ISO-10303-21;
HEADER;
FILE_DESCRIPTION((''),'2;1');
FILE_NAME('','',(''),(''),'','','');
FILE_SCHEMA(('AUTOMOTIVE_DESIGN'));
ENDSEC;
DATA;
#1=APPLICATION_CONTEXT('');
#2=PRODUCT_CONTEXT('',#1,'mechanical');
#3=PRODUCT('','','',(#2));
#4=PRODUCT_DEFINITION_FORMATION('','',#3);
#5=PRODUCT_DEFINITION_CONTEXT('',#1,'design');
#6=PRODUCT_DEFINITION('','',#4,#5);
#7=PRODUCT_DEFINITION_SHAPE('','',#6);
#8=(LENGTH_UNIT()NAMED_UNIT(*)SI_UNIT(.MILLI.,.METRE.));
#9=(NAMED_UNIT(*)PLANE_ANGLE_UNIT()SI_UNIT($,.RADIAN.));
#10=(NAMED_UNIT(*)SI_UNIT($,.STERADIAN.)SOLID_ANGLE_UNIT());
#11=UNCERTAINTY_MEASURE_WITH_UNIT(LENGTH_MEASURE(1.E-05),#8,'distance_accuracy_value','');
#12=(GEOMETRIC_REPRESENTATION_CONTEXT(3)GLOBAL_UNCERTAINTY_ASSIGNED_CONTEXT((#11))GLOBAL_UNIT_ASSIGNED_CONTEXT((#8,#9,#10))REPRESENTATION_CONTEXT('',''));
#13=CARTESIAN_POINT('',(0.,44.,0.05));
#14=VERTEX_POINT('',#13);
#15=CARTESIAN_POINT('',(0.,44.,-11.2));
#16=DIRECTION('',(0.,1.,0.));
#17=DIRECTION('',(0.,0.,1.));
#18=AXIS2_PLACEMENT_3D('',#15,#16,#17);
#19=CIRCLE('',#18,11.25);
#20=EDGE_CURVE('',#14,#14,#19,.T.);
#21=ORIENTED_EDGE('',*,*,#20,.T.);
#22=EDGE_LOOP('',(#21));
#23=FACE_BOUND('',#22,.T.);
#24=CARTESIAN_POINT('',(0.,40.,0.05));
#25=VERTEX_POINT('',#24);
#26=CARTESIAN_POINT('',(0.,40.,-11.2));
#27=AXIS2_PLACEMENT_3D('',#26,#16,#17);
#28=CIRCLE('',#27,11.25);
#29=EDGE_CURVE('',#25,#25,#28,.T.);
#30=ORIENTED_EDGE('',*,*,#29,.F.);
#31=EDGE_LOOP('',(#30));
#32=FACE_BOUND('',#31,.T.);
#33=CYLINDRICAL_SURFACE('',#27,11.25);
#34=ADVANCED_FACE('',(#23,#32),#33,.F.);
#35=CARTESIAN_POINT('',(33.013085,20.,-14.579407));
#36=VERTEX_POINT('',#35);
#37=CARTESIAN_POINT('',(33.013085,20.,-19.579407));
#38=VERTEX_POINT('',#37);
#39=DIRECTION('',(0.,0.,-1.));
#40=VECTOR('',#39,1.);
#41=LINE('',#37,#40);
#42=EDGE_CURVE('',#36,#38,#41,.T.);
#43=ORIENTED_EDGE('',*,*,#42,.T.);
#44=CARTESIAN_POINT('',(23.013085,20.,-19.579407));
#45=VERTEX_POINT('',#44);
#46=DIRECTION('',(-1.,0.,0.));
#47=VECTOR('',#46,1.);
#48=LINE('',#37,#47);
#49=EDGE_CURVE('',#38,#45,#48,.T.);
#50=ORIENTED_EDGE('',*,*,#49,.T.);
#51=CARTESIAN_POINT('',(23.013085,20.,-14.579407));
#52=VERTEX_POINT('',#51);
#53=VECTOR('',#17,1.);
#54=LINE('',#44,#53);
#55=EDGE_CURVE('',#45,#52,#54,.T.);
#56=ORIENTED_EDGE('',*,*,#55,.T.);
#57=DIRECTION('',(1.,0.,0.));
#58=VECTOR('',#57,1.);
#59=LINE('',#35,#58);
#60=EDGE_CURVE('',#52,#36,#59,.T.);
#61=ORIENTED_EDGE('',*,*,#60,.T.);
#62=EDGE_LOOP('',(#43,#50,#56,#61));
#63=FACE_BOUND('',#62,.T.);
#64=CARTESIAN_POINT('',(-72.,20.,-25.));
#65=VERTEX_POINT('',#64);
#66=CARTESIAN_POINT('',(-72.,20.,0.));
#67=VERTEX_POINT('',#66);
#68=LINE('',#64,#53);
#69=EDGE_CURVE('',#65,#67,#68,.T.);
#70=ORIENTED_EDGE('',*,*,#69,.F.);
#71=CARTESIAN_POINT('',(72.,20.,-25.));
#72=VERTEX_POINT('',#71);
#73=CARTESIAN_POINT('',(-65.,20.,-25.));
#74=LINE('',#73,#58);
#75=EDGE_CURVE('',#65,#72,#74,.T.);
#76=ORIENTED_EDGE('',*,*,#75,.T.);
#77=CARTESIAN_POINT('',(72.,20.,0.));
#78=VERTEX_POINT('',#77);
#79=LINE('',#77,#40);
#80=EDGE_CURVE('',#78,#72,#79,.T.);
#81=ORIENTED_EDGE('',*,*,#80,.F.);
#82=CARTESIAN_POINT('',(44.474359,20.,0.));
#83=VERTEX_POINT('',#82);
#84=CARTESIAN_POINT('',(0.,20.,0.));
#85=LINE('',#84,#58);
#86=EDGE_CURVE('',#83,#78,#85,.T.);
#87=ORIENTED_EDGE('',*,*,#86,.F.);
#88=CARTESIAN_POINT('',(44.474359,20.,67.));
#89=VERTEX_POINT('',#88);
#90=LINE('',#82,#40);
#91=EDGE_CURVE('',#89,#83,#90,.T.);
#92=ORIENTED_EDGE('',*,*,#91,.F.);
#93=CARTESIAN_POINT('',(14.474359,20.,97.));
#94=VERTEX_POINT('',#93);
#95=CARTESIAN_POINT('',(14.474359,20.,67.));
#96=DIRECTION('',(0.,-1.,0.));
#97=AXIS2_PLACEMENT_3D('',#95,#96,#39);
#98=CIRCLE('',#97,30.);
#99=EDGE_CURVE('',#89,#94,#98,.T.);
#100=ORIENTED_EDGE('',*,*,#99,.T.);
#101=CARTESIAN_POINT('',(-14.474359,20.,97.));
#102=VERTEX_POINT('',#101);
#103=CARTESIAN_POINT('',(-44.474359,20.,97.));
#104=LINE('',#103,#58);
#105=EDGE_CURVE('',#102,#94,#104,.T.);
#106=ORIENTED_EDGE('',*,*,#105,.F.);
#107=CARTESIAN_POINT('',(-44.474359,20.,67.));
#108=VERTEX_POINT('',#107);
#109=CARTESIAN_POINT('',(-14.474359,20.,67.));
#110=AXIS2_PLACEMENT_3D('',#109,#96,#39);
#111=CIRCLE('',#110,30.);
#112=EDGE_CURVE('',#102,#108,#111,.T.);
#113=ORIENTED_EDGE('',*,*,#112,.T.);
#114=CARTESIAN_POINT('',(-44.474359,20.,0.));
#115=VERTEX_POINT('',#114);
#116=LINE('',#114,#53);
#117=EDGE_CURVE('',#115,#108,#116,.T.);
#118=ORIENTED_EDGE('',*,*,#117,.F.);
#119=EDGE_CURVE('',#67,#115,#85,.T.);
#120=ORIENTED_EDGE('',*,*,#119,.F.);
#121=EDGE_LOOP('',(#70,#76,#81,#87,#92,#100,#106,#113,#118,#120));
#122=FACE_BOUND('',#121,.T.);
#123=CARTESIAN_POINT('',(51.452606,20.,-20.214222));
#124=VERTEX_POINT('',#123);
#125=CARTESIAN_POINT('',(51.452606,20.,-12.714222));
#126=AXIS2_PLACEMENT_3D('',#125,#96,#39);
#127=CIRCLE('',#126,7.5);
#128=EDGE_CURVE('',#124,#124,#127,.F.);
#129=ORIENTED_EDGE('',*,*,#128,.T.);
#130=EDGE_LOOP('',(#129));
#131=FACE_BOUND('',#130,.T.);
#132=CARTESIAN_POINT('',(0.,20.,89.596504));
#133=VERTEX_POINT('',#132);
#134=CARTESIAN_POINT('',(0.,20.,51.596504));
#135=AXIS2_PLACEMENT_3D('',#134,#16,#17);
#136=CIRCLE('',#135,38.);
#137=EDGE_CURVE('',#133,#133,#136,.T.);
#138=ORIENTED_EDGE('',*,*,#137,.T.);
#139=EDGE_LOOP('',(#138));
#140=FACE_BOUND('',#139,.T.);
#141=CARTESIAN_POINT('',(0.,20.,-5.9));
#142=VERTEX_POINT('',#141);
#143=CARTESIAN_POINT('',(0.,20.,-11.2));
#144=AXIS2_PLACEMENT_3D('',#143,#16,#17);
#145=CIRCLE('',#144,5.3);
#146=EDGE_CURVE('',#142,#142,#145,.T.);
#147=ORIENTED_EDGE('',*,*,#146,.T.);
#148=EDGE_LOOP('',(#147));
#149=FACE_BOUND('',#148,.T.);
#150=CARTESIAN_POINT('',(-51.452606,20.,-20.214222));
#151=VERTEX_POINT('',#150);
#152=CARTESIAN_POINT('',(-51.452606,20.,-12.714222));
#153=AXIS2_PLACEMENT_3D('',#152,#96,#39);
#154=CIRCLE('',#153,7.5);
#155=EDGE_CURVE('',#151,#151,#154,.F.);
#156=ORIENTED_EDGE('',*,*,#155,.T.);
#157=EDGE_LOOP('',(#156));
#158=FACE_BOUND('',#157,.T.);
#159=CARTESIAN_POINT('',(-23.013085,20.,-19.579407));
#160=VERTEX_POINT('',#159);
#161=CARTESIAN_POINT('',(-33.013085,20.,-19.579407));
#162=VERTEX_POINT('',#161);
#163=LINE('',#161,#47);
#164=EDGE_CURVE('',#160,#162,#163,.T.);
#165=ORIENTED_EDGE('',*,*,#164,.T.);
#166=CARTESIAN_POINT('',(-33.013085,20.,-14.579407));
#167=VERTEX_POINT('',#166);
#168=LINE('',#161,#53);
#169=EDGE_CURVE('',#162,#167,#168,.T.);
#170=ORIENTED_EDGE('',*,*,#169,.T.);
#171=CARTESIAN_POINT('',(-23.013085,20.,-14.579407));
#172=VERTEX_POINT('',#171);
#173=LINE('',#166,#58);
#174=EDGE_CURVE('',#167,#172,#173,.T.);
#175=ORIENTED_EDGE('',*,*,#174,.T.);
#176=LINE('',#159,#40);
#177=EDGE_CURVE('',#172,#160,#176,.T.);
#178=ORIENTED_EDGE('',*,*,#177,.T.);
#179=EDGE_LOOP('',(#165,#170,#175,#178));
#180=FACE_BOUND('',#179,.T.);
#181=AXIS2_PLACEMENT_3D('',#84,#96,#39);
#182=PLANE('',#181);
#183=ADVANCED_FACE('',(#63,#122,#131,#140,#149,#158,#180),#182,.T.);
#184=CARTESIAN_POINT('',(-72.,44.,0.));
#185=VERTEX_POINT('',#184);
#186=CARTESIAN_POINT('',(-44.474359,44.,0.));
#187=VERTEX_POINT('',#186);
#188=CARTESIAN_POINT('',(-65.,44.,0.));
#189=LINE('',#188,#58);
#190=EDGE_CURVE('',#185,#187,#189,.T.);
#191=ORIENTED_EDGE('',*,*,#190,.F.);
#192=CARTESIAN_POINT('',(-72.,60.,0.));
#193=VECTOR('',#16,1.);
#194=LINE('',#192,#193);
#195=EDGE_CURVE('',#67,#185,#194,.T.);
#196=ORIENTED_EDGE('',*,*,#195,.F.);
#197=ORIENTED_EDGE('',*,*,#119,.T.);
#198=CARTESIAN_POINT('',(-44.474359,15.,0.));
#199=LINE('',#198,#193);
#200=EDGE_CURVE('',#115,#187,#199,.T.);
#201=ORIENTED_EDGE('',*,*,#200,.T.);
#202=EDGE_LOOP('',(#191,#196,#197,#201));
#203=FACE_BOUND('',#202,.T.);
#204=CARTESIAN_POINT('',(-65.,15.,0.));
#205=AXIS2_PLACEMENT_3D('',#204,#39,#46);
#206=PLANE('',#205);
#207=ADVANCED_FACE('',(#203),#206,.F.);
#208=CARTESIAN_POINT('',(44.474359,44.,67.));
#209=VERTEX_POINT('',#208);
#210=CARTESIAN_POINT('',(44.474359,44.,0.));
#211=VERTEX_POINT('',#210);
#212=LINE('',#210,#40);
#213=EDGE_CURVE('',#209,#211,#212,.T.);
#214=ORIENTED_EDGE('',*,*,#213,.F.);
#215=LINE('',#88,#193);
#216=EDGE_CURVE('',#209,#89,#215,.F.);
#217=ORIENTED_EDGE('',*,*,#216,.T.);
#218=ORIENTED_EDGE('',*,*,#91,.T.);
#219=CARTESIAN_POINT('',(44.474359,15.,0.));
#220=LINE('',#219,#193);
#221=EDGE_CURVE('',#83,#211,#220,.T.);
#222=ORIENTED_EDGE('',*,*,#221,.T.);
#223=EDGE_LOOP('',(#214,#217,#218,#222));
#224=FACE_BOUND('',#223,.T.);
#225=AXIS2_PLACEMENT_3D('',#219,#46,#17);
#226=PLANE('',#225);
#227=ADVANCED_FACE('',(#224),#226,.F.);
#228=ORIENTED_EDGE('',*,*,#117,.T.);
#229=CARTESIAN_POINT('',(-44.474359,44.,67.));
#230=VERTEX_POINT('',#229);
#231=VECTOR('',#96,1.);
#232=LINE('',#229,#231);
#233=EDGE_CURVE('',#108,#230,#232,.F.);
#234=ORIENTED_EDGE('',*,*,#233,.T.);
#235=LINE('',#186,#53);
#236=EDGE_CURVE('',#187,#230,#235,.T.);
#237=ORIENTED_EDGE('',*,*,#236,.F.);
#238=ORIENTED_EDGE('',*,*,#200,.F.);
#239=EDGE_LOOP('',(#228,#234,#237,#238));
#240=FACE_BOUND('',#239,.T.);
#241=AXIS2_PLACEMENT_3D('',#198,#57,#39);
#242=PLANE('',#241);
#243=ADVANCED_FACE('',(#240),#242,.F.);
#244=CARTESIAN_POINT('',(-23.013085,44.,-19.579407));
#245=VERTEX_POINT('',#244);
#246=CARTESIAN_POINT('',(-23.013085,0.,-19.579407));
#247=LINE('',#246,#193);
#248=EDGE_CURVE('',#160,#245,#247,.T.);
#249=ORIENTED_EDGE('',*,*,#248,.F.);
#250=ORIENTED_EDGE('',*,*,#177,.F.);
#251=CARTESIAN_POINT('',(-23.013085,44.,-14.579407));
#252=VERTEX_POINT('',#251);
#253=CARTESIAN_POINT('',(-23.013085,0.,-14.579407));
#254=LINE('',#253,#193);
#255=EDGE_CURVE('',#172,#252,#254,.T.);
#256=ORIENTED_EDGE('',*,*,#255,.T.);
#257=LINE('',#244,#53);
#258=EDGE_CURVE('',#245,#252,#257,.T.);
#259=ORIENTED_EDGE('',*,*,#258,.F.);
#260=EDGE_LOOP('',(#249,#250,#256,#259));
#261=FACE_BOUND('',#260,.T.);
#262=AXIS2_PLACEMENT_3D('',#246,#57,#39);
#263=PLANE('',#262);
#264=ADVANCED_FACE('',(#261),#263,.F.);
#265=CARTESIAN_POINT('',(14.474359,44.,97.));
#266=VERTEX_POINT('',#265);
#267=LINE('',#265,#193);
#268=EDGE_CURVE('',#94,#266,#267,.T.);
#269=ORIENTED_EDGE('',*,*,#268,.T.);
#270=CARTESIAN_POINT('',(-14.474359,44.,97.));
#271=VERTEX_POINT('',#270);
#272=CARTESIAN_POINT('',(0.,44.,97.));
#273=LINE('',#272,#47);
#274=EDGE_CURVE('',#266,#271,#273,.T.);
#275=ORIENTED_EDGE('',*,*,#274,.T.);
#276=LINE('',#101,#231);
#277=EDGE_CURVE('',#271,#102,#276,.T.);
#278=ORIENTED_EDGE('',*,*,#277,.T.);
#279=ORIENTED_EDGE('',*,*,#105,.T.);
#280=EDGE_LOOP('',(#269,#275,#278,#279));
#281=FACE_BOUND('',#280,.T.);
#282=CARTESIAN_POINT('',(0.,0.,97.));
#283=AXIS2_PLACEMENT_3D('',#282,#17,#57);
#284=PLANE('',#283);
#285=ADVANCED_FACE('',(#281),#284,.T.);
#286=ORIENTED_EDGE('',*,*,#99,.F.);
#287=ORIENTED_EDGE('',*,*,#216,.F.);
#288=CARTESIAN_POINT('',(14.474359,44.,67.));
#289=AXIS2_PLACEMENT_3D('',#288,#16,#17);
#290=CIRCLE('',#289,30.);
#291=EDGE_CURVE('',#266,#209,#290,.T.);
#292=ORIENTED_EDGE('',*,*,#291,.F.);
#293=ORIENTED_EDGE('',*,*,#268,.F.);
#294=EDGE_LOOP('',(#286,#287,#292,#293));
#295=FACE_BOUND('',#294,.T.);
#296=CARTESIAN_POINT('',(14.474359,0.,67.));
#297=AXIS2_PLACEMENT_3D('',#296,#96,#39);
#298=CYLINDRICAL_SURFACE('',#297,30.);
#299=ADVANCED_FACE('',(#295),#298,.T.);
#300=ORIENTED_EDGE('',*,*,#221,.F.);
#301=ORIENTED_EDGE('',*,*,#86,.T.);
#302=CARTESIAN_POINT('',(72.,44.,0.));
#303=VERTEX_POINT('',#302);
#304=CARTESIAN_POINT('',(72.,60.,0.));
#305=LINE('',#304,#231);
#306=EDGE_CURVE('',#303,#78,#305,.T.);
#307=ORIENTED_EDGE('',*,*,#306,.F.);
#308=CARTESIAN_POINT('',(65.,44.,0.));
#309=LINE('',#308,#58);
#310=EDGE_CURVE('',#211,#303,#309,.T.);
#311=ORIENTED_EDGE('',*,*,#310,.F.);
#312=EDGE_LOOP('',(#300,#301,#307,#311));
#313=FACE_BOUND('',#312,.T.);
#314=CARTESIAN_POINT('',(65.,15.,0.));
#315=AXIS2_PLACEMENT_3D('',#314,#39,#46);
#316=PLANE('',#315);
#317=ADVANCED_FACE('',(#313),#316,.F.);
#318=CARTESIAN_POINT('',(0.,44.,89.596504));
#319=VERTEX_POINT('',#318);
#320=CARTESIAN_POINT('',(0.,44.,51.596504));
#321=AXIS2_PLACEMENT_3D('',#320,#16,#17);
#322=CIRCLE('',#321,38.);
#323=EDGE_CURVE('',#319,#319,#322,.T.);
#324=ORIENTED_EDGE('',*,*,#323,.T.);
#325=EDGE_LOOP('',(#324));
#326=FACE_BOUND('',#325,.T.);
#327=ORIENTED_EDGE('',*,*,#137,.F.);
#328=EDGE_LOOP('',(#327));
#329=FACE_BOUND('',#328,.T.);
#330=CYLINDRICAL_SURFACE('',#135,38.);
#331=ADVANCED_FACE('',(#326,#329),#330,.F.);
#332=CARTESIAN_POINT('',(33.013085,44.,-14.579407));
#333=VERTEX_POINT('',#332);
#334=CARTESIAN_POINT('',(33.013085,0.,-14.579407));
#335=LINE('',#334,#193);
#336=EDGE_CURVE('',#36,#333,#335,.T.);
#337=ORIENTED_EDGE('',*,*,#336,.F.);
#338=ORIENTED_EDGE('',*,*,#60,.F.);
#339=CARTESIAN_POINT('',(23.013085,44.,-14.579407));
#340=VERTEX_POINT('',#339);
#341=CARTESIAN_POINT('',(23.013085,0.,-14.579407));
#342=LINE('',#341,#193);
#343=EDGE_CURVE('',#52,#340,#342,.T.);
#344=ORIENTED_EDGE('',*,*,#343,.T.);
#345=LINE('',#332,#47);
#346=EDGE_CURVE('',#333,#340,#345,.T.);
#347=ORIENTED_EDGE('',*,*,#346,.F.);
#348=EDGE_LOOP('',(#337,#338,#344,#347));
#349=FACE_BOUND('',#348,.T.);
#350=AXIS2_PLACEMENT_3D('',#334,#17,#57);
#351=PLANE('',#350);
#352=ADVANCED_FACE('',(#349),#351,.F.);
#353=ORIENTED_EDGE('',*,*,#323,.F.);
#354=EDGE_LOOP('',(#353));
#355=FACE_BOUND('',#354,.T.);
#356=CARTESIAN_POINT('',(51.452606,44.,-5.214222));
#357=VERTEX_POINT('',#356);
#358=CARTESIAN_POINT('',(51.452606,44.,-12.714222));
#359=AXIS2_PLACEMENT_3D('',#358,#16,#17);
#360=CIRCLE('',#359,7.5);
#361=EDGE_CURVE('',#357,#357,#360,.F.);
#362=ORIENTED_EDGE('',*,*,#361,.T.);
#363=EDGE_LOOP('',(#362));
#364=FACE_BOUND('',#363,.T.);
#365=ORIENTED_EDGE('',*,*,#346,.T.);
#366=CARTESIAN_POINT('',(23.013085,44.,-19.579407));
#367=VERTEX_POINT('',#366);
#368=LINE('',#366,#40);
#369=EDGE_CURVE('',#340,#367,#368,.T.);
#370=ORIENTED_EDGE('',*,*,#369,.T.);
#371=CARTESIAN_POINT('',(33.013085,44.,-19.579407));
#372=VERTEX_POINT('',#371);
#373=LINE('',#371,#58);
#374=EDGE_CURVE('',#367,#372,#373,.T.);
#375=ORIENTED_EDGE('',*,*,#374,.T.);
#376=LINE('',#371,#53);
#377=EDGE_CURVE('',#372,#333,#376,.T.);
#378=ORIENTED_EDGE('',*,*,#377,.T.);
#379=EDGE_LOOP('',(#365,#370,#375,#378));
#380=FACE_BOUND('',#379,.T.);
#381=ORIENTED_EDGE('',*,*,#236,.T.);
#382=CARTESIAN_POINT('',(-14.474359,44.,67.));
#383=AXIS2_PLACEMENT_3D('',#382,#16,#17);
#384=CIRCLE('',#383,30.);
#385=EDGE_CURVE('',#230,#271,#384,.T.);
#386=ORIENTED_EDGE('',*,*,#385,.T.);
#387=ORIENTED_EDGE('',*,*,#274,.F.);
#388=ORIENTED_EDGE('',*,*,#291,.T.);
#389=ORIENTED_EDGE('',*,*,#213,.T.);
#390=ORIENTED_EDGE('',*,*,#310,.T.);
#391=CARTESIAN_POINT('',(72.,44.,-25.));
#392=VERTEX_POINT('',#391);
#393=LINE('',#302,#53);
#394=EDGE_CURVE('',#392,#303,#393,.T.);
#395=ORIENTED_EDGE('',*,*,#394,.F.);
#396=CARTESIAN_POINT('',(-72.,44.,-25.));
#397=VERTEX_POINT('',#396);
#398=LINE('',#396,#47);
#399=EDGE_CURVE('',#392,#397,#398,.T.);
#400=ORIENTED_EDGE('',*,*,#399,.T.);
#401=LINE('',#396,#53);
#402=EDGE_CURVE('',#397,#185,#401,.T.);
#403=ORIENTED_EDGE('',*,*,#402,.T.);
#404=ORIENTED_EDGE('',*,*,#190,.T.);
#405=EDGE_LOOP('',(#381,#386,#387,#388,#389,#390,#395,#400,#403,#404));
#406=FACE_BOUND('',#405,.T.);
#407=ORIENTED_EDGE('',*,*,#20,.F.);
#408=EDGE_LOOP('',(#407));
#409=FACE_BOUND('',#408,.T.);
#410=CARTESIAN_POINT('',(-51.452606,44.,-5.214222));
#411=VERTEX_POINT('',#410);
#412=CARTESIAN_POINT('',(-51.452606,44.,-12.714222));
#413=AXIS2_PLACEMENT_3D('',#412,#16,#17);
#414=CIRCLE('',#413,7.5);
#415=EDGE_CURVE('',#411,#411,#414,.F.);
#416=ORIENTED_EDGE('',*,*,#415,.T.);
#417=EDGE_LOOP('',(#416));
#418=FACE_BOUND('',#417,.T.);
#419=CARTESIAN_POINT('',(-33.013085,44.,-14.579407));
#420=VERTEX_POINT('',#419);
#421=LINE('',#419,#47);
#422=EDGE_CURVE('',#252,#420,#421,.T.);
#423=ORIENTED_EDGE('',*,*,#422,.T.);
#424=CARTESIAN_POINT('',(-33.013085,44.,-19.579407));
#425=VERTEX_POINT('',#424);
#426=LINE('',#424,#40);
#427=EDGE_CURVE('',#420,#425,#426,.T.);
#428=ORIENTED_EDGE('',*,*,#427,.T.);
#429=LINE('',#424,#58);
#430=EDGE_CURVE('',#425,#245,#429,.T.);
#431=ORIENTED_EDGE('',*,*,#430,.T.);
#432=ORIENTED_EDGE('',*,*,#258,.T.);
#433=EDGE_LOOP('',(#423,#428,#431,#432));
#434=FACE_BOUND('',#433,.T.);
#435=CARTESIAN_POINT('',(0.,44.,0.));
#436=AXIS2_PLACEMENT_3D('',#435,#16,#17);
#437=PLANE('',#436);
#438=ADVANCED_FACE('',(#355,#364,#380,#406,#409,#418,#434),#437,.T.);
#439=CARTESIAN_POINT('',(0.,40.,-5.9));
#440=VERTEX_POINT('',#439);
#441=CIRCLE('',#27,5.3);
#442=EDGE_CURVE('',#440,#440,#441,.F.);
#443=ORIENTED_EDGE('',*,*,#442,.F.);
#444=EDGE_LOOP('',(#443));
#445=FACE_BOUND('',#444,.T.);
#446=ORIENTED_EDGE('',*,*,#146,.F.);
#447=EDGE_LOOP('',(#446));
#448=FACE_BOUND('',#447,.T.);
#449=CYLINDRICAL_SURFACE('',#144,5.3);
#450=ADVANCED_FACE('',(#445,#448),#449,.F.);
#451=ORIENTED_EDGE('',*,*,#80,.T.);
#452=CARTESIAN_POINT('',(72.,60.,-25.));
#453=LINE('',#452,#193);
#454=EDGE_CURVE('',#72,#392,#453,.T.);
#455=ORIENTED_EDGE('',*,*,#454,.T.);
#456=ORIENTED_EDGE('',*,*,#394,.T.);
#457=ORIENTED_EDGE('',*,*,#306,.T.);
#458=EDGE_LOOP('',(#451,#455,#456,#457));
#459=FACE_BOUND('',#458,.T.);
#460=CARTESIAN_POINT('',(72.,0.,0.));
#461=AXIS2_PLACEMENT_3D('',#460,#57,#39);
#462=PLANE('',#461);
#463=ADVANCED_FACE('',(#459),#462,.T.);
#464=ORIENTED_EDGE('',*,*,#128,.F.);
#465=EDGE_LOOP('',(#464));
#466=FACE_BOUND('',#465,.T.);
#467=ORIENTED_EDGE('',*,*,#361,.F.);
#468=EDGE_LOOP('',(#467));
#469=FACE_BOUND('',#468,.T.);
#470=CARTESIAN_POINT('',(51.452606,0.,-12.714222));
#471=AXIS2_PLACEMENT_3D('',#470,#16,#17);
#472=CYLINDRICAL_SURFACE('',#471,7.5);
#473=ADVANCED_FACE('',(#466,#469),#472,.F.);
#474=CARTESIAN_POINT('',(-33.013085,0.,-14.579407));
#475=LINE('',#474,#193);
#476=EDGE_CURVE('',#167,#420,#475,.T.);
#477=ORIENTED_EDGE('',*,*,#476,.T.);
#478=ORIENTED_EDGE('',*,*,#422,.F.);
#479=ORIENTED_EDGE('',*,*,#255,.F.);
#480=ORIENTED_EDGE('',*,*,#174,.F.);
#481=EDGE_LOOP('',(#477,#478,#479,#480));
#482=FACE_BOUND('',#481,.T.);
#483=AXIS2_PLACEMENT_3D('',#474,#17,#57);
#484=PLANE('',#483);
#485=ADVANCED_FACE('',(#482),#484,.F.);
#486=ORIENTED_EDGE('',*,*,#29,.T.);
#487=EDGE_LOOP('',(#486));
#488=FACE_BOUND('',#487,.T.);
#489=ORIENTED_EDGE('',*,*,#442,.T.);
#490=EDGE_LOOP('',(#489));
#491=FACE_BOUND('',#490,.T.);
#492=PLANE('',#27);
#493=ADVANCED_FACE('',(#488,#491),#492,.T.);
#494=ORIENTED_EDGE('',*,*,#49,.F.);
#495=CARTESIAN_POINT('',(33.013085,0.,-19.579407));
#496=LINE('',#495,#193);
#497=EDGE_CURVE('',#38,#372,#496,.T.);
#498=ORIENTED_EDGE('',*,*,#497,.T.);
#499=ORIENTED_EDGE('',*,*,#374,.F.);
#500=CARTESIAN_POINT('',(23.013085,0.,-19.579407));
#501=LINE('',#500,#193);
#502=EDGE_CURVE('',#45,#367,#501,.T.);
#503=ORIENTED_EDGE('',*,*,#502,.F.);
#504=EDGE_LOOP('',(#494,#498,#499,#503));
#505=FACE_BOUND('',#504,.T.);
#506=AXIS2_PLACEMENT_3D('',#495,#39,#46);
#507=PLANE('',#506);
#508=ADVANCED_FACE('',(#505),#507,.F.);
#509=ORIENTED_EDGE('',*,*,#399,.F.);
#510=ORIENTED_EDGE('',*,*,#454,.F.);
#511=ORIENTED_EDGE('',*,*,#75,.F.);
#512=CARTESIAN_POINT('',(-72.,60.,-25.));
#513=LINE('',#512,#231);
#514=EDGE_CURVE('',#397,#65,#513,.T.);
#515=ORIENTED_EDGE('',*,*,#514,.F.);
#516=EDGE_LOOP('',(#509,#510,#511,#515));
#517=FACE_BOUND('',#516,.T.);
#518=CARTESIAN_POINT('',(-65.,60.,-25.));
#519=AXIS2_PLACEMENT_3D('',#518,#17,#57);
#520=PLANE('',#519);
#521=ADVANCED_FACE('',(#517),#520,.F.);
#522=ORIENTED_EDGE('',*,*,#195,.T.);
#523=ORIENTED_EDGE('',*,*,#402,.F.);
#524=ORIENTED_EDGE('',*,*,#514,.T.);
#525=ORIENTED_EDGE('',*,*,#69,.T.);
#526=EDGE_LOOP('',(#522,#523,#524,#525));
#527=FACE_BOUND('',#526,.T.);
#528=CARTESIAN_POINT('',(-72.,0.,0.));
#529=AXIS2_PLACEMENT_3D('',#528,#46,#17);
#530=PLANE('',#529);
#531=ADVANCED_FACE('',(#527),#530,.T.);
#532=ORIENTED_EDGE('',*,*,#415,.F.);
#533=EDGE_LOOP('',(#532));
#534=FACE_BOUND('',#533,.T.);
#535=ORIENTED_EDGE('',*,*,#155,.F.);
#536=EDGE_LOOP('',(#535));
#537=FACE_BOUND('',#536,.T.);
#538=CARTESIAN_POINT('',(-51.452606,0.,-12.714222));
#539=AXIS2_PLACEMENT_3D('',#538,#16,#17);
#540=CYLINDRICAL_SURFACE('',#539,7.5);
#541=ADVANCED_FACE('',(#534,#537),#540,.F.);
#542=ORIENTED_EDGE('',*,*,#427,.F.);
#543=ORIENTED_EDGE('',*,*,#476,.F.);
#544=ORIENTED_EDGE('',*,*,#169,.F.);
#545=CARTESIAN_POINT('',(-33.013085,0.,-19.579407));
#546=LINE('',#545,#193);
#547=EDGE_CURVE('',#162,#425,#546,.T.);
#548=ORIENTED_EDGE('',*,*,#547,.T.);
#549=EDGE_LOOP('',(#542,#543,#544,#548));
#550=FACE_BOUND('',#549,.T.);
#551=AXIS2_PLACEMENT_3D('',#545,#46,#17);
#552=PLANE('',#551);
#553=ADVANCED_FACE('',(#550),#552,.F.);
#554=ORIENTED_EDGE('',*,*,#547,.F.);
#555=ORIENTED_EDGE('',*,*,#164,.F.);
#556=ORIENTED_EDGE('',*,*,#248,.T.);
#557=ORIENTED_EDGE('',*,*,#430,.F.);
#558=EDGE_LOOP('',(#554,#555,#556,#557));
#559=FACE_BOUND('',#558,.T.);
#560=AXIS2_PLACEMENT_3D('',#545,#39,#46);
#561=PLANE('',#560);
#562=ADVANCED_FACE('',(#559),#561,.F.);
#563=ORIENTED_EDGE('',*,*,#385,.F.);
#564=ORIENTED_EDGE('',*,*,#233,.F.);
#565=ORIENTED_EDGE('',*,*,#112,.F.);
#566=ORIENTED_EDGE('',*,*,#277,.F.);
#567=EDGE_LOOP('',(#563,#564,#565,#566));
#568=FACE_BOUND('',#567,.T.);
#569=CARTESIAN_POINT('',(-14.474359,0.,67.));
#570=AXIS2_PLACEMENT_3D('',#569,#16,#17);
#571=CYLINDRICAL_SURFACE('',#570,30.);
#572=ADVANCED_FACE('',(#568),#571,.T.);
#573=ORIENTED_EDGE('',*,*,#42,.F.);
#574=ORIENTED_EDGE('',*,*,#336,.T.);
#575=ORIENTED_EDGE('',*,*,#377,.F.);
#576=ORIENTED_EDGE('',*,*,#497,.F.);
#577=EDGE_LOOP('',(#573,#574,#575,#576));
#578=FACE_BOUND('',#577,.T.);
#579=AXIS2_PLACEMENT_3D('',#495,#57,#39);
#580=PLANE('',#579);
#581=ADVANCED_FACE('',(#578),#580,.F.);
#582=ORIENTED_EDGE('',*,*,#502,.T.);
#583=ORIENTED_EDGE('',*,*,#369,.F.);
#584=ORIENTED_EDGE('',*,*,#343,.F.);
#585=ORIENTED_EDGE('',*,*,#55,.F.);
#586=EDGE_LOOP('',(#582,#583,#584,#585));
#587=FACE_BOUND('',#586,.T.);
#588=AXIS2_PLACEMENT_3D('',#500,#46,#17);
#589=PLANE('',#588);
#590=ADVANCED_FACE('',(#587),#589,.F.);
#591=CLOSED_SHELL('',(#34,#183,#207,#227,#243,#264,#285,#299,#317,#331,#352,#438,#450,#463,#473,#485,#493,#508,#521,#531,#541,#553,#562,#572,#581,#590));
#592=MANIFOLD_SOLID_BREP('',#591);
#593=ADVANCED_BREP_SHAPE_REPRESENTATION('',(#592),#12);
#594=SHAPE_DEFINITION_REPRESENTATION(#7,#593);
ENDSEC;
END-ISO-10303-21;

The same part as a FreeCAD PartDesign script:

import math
import FreeCAD as App
import Part
import Sketcher
from FreeCAD import Vector
Q = App.Units.Quantity


def edges_at(feature, points):
    """Names of the edges that pass closest to the given points."""
    edges = feature.Shape.Edges
    near = lambda p: min(range(len(edges)), key=lambda i: edges[i].distToShape(Part.Vertex(*p))[0])
    return sorted({f"Edge{near(p) + 1}" for p in points})

doc = App.newDocument("Part")
body = doc.addObject("PartDesign::Body", "Body")

sketch1 = body.newObject("Sketcher::SketchObject", "Sketch")
sketch1.AttachmentSupport = (doc.getObject("XZ_Plane"), [""])
sketch1.MapMode = "FlatFace"
sketch1.addGeometry([
    Part.LineSegment(Vector(65, -25, 0), Vector(-65, -25, 0)),
    Part.LineSegment(Vector(-65, -25, 0), Vector(-65, 25, 0)),
    Part.LineSegment(Vector(-65, 25, 0), Vector(-33, 25, 0)),
    Part.ArcOfCircle(Part.Circle(Vector(0, 45, 0), Vector(0, 0, 1), 38), math.radians(-149), math.radians(-31)),
    Part.LineSegment(Vector(33, 25, 0), Vector(65, 25, 0)),
    Part.LineSegment(Vector(65, 25, 0), Vector(65, -25, 0)),
], False)
sketch1.addConstraint([
    Sketcher.Constraint("Coincident", 0, 2, 1, 1),
    Sketcher.Constraint("Coincident", 1, 2, 2, 1),
    Sketcher.Constraint("Coincident", 2, 2, 3, 1),
    Sketcher.Constraint("Coincident", 3, 2, 4, 1),
    Sketcher.Constraint("Coincident", 4, 2, 5, 1),
    Sketcher.Constraint("Coincident", 5, 2, 0, 1),
    Sketcher.Constraint("Horizontal", 0),
    Sketcher.Constraint("Vertical", 1),
    Sketcher.Constraint("Horizontal", 2),
    Sketcher.Constraint("Horizontal", 4),
    Sketcher.Constraint("Vertical", 5),
    Sketcher.Constraint("Symmetric", 0, 2, 4, 2, -1, 1),
    Sketcher.Constraint("Symmetric", 2, 2, 3, 2, -2),
    Sketcher.Constraint("Radius", 3, Q("38.5 mm")),
    Sketcher.Constraint("DistanceX", 0, 2, 0, 1, Q("130 mm")),
    Sketcher.Constraint("DistanceY", 1, 1, 1, 2, Q("50 mm")),
    Sketcher.Constraint("DistanceY", -1, 1, 3, 3, Q("45 mm")),
])
pad1 = body.newObject("PartDesign::Pad", "Pad")
pad1.Profile = sketch1
pad1.Length = 60
pad1.Reversed = True

sketch2 = body.newObject("Sketcher::SketchObject", "Sketch001")
sketch2.AttachmentSupport = (doc.getObject("XZ_Plane"), [""])
sketch2.MapMode = "FlatFace"
sketch2.AttachmentOffset = App.Placement(Vector(0, 0, -60), App.Rotation())
sketch2.addGeometry([
    Part.Circle(Vector(-51, -13, 0), Vector(0, 0, 1), 8),
    Part.Circle(Vector(51, -13, 0), Vector(0, 0, 1), 8),
], False)
sketch2.addConstraint([
    Sketcher.Constraint("Equal", 0, 1),
    Sketcher.Constraint("Symmetric", 0, 3, 1, 3, -2),
    Sketcher.Constraint("Diameter", 0, Q("15 mm")),
    Sketcher.Constraint("DistanceX", 0, 3, 1, 3, Q("102.905211 mm")),
    Sketcher.Constraint("DistanceY", 0, 3, -1, 1, Q("12.714222 mm")),
])
pocket1 = body.newObject("PartDesign::Pocket", "Pocket")
pocket1.Profile = sketch2
pocket1.Length = 60
pocket1.Reversed = True

sketch3 = body.newObject("Sketcher::SketchObject", "Sketch002")
sketch3.AttachmentSupport = (doc.getObject("XZ_Plane"), [""])
sketch3.MapMode = "FlatFace"
sketch3.AttachmentOffset = App.Placement(Vector(0, 0, -60), App.Rotation())
sketch3.addGeometry(Part.Circle(Vector(0, -13, 0), Vector(0, 0, 1), 5), False)
sketch3.addConstraint([
    Sketcher.Constraint("PointOnObject", 0, 3, -2),
    Sketcher.Constraint("Diameter", 0, Q("10.5 mm")),
    Sketcher.Constraint("DistanceY", 0, 3, -1, 1, Q("12.714222 mm")),
])
pocket2 = body.newObject("PartDesign::Pocket", "Pocket001")
pocket2.Profile = sketch3
pocket2.Length = 60
pocket2.Reversed = True

sketch4 = body.newObject("Sketcher::SketchObject", "Sketch003")
sketch4.AttachmentSupport = (doc.getObject("XZ_Plane"), [""])
sketch4.MapMode = "FlatFace"
sketch4.AttachmentOffset = App.Placement(Vector(0, 0, -60), App.Rotation())
sketch4.addGeometry(Part.Circle(Vector(0, -13, 0), Vector(0, 0, 1), 12), False)
sketch4.addConstraint([
    Sketcher.Constraint("PointOnObject", 0, 3, -2),
    Sketcher.Constraint("Diameter", 0, Q("23 mm")),
    Sketcher.Constraint("DistanceY", 0, 3, -1, 1, Q("12.714222 mm")),
])
pocket3 = body.newObject("PartDesign::Pocket", "Pocket002")
pocket3.Profile = sketch4
pocket3.Length = 4
pocket3.Reversed = True

sketch5 = body.newObject("Sketcher::SketchObject", "Sketch004")
sketch5.AttachmentSupport = (doc.getObject("XZ_Plane"), [""])
sketch5.MapMode = "FlatFace"
sketch5.AttachmentOffset = App.Placement(Vector(0, 0, -60), App.Rotation())
sketch5.addGeometry([
    Part.LineSegment(Vector(-58, 14, 0), Vector(-58, 19, 0)),
    Part.LineSegment(Vector(-58, 19, 0), Vector(-48, 19, 0)),
    Part.LineSegment(Vector(-48, 19, 0), Vector(-48, 14, 0)),
    Part.LineSegment(Vector(-48, 14, 0), Vector(-58, 14, 0)),
    Part.LineSegment(Vector(-33, -20, 0), Vector(-33, -15, 0)),
    Part.LineSegment(Vector(-33, -15, 0), Vector(-23, -15, 0)),
    Part.LineSegment(Vector(-23, -15, 0), Vector(-23, -20, 0)),
    Part.LineSegment(Vector(-23, -20, 0), Vector(-33, -20, 0)),
    Part.LineSegment(Vector(48, 14, 0), Vector(48, 19, 0)),
    Part.LineSegment(Vector(48, 19, 0), Vector(58, 19, 0)),
    Part.LineSegment(Vector(58, 19, 0), Vector(58, 14, 0)),
    Part.LineSegment(Vector(58, 14, 0), Vector(48, 14, 0)),
    Part.LineSegment(Vector(23, -20, 0), Vector(23, -15, 0)),
    Part.LineSegment(Vector(23, -15, 0), Vector(33, -15, 0)),
    Part.LineSegment(Vector(33, -15, 0), Vector(33, -20, 0)),
    Part.LineSegment(Vector(33, -20, 0), Vector(23, -20, 0)),
], False)
sketch5.addConstraint([
    Sketcher.Constraint("Coincident", 0, 2, 1, 1),
    Sketcher.Constraint("Coincident", 1, 2, 2, 1),
    Sketcher.Constraint("Coincident", 2, 2, 3, 1),
    Sketcher.Constraint("Coincident", 3, 2, 0, 1),
    Sketcher.Constraint("Coincident", 4, 2, 5, 1),
    Sketcher.Constraint("Coincident", 5, 2, 6, 1),
    Sketcher.Constraint("Coincident", 6, 2, 7, 1),
    Sketcher.Constraint("Coincident", 7, 2, 4, 1),
    Sketcher.Constraint("Coincident", 8, 2, 9, 1),
    Sketcher.Constraint("Coincident", 9, 2, 10, 1),
    Sketcher.Constraint("Coincident", 10, 2, 11, 1),
    Sketcher.Constraint("Coincident", 11, 2, 8, 1),
    Sketcher.Constraint("Coincident", 12, 2, 13, 1),
    Sketcher.Constraint("Coincident", 13, 2, 14, 1),
    Sketcher.Constraint("Coincident", 14, 2, 15, 1),
    Sketcher.Constraint("Coincident", 15, 2, 12, 1),
    Sketcher.Constraint("Vertical", 0),
    Sketcher.Constraint("Horizontal", 1),
    Sketcher.Constraint("Vertical", 2),
    Sketcher.Constraint("Horizontal", 3),
    Sketcher.Constraint("Vertical", 4),
    Sketcher.Constraint("Horizontal", 5),
    Sketcher.Constraint("Vertical", 6),
    Sketcher.Constraint("Horizontal", 7),
    Sketcher.Constraint("Vertical", 8),
    Sketcher.Constraint("Horizontal", 9),
    Sketcher.Constraint("Vertical", 10),
    Sketcher.Constraint("Horizontal", 11),
    Sketcher.Constraint("Vertical", 12),
    Sketcher.Constraint("Horizontal", 13),
    Sketcher.Constraint("Vertical", 14),
    Sketcher.Constraint("Horizontal", 15),
    Sketcher.Constraint("Symmetric", 1, 2, 8, 2, -2),
    Sketcher.Constraint("Symmetric", 3, 2, 10, 2, -2),
    Sketcher.Constraint("Symmetric", 5, 2, 12, 2, -2),
    Sketcher.Constraint("Symmetric", 7, 2, 14, 2, -2),
    Sketcher.Constraint("Equal", 3, 5),
    Sketcher.Constraint("Equal", 2, 4),
    Sketcher.Constraint("DistanceX", 1, 1, 1, 2, Q("10 mm")),
    Sketcher.Constraint("DistanceY", 0, 1, 0, 2, Q("5 mm")),
    Sketcher.Constraint("DistanceX", 0, 2, -1, 1, Q("57.884181 mm")),
    Sketcher.Constraint("DistanceY", -1, 1, 0, 2, Q("19.080341 mm")),
    Sketcher.Constraint("DistanceX", 5, 2, 12, 2, Q("46.02617 mm")),
    Sketcher.Constraint("DistanceY", 4, 2, -1, 1, Q("14.579407 mm")),
])
pocket4 = body.newObject("PartDesign::Pocket", "Pocket003")
pocket4.Profile = sketch5
pocket4.Length = 60
pocket4.Reversed = True

sketch6 = body.newObject("Sketcher::SketchObject", "Sketch005")
sketch6.AttachmentSupport = (doc.getObject("XZ_Plane"), [""])
sketch6.MapMode = "FlatFace"
sketch6.AttachmentOffset = App.Placement(Vector(0, 0, -60), App.Rotation())
sketch6.addGeometry([
    Part.LineSegment(Vector(-65, 0, 0), Vector(-65, 90, 0)),
    Part.LineSegment(Vector(-65, 90, 0), Vector(65, 90, 0)),
    Part.LineSegment(Vector(65, 90, 0), Vector(65, 0, 0)),
    Part.LineSegment(Vector(65, 0, 0), Vector(-65, 0, 0)),
], False)
sketch6.addConstraint([
    Sketcher.Constraint("Coincident", 0, 2, 1, 1),
    Sketcher.Constraint("Coincident", 1, 2, 2, 1),
    Sketcher.Constraint("Coincident", 2, 2, 3, 1),
    Sketcher.Constraint("Coincident", 3, 2, 0, 1),
    Sketcher.Constraint("Vertical", 0),
    Sketcher.Constraint("Horizontal", 1),
    Sketcher.Constraint("Vertical", 2),
    Sketcher.Constraint("Horizontal", 3),
    Sketcher.Constraint("Symmetric", 2, 2, 3, 2, -1, 1),
    Sketcher.Constraint("DistanceX", 1, 1, 1, 2, Q("130 mm")),
    Sketcher.Constraint("DistanceY", 0, 1, 0, 2, Q("90 mm")),
])
pad2 = body.newObject("PartDesign::Pad", "Pad001")
pad2.Profile = sketch6
pad2.Length = 60

sketch7 = body.newObject("Sketcher::SketchObject", "Sketch006")
sketch7.AttachmentSupport = (doc.getObject("XZ_Plane"), [""])
sketch7.MapMode = "FlatFace"
sketch7.addGeometry([
    Part.LineSegment(Vector(-65, 90, 0), Vector(-65, -25, 0)),
    Part.LineSegment(Vector(-65, -25, 0), Vector(65, -25, 0)),
    Part.LineSegment(Vector(65, -25, 0), Vector(65, 90, 0)),
    Part.LineSegment(Vector(65, 90, 0), Vector(-65, 90, 0)),
], False)
sketch7.addConstraint([
    Sketcher.Constraint("Coincident", 0, 2, 1, 1),
    Sketcher.Constraint("Coincident", 1, 2, 2, 1),
    Sketcher.Constraint("Coincident", 2, 2, 3, 1),
    Sketcher.Constraint("Coincident", 3, 2, 0, 1),
    Sketcher.Constraint("Vertical", 0),
    Sketcher.Constraint("Horizontal", 1),
    Sketcher.Constraint("Vertical", 2),
    Sketcher.Constraint("Horizontal", 3),
    Sketcher.Constraint("DistanceX", 1, 1, 1, 2, Q("130 mm")),
    Sketcher.Constraint("DistanceY", 0, 2, 0, 1, Q("115 mm")),
    Sketcher.Constraint("DistanceX", 0, 2, -1, 1, Q("65 mm")),
    Sketcher.Constraint("DistanceY", 0, 2, -1, 1, Q("25 mm")),
])
pocket5 = body.newObject("PartDesign::Pocket", "Pocket004")
pocket5.Profile = sketch7
pocket5.Length = 20

sketch8 = body.newObject("Sketcher::SketchObject", "Sketch007")
sketch8.AttachmentSupport = (doc.getObject("XZ_Plane"), [""])
sketch8.MapMode = "FlatFace"
sketch8.AttachmentOffset = App.Placement(Vector(0, 0, -60), App.Rotation())
sketch8.addGeometry([
    Part.LineSegment(Vector(-65, 0, 0), Vector(-65, 90, 0)),
    Part.LineSegment(Vector(-65, 90, 0), Vector(-44, 90, 0)),
    Part.LineSegment(Vector(-44, 90, 0), Vector(-44, 0, 0)),
    Part.LineSegment(Vector(-44, 0, 0), Vector(-65, 0, 0)),
    Part.LineSegment(Vector(44, 0, 0), Vector(44, 90, 0)),
    Part.LineSegment(Vector(44, 90, 0), Vector(65, 90, 0)),
    Part.LineSegment(Vector(65, 90, 0), Vector(65, 0, 0)),
    Part.LineSegment(Vector(65, 0, 0), Vector(44, 0, 0)),
], False)
sketch8.addConstraint([
    Sketcher.Constraint("Coincident", 0, 2, 1, 1),
    Sketcher.Constraint("Coincident", 1, 2, 2, 1),
    Sketcher.Constraint("Coincident", 2, 2, 3, 1),
    Sketcher.Constraint("Coincident", 3, 2, 0, 1),
    Sketcher.Constraint("Coincident", 4, 2, 5, 1),
    Sketcher.Constraint("Coincident", 5, 2, 6, 1),
    Sketcher.Constraint("Coincident", 6, 2, 7, 1),
    Sketcher.Constraint("Coincident", 7, 2, 4, 1),
    Sketcher.Constraint("Vertical", 0),
    Sketcher.Constraint("Horizontal", 1),
    Sketcher.Constraint("Vertical", 2),
    Sketcher.Constraint("Horizontal", 3),
    Sketcher.Constraint("Vertical", 4),
    Sketcher.Constraint("Horizontal", 5),
    Sketcher.Constraint("Vertical", 6),
    Sketcher.Constraint("Horizontal", 7),
    Sketcher.Constraint("Symmetric", 3, 2, 6, 2, -1, 1),
    Sketcher.Constraint("Symmetric", 1, 2, 4, 2, -2),
    Sketcher.Constraint("PointOnObject", 2, 2, -1),
    Sketcher.Constraint("DistanceY", 0, 1, 0, 2, Q("90 mm")),
    Sketcher.Constraint("DistanceX", 0, 2, -1, 1, Q("65 mm")),
    Sketcher.Constraint("DistanceX", 1, 1, 1, 2, Q("20.525641 mm")),
])
pocket6 = body.newObject("PartDesign::Pocket", "Pocket005")
pocket6.Profile = sketch8
pocket6.Length = 45
pocket6.Reversed = True

sketch9 = body.newObject("Sketcher::SketchObject", "Sketch008")
sketch9.AttachmentSupport = (doc.getObject("XZ_Plane"), [""])
sketch9.MapMode = "FlatFace"
sketch9.AttachmentOffset = App.Placement(Vector(0, 0, -60), App.Rotation())
sketch9.addGeometry(Part.Circle(Vector(0, 51, 0), Vector(0, 0, 1), 38), False)
sketch9.addConstraint([
    Sketcher.Constraint("PointOnObject", 0, 3, -2),
    Sketcher.Constraint("Diameter", 0, Q("77 mm")),
    Sketcher.Constraint("DistanceY", -1, 1, 0, 3, Q("51.285778 mm")),
])
pocket7 = body.newObject("PartDesign::Pocket", "Pocket006")
pocket7.Profile = sketch9
pocket7.Length = 40
pocket7.Reversed = True

sketch10 = body.newObject("Sketcher::SketchObject", "Sketch009")
sketch10.AttachmentSupport = (doc.getObject("XY_Plane"), [""])
sketch10.MapMode = "FlatFace"
sketch10.AttachmentOffset = App.Placement(Vector(0, 0, 90), App.Rotation())
sketch10.addGeometry([
    Part.LineSegment(Vector(-44, 60, 0), Vector(-44, 20, 0)),
    Part.LineSegment(Vector(-44, 20, 0), Vector(44, 20, 0)),
    Part.LineSegment(Vector(44, 20, 0), Vector(44, 60, 0)),
    Part.LineSegment(Vector(44, 60, 0), Vector(-44, 60, 0)),
], False)
sketch10.addConstraint([
    Sketcher.Constraint("Coincident", 0, 2, 1, 1),
    Sketcher.Constraint("Coincident", 1, 2, 2, 1),
    Sketcher.Constraint("Coincident", 2, 2, 3, 1),
    Sketcher.Constraint("Coincident", 3, 2, 0, 1),
    Sketcher.Constraint("Vertical", 0),
    Sketcher.Constraint("Horizontal", 1),
    Sketcher.Constraint("Vertical", 2),
    Sketcher.Constraint("Horizontal", 3),
    Sketcher.Constraint("DistanceY", 0, 2, 0, 1, Q("40 mm")),
    Sketcher.Constraint("DistanceY", -1, 1, 0, 2, Q("20 mm")),
    Sketcher.Constraint("DistanceX", 1, 1, 1, 2, Q("88.948717 mm")),
    Sketcher.Constraint("DistanceX", 0, 2, -1, 1, Q("44.474359 mm")),
])
pad3 = body.newObject("PartDesign::Pad", "Pad002")
pad3.Profile = sketch10
pad3.Length = 7

sketch11 = body.newObject("Sketcher::SketchObject", "Sketch010")
sketch11.AttachmentSupport = (doc.getObject("YZ_Plane"), [""])
sketch11.MapMode = "FlatFace"
sketch11.AttachmentOffset = App.Placement(Vector(0, 0, 65), App.Rotation())
sketch11.addGeometry([
    Part.LineSegment(Vector(60, 0, 0), Vector(20, 0, 0)),
    Part.LineSegment(Vector(20, 0, 0), Vector(20, -25, 0)),
    Part.LineSegment(Vector(20, -25, 0), Vector(60, -25, 0)),
    Part.LineSegment(Vector(60, -25, 0), Vector(60, 0, 0)),
], False)
sketch11.addConstraint([
    Sketcher.Constraint("Coincident", 0, 2, 1, 1),
    Sketcher.Constraint("Coincident", 1, 2, 2, 1),
    Sketcher.Constraint("Coincident", 2, 2, 3, 1),
    Sketcher.Constraint("Coincident", 3, 2, 0, 1),
    Sketcher.Constraint("Horizontal", 0),
    Sketcher.Constraint("Vertical", 1),
    Sketcher.Constraint("Horizontal", 2),
    Sketcher.Constraint("Vertical", 3),
    Sketcher.Constraint("PointOnObject", 0, 2, -1),
    Sketcher.Constraint("DistanceX", 0, 2, 0, 1, Q("40 mm")),
    Sketcher.Constraint("DistanceY", 1, 2, 1, 1, Q("25 mm")),
    Sketcher.Constraint("DistanceX", -1, 1, 0, 2, Q("20 mm")),
])
pad4 = body.newObject("PartDesign::Pad", "Pad003")
pad4.Profile = sketch11
pad4.Length = 7

sketch12 = body.newObject("Sketcher::SketchObject", "Sketch011")
sketch12.AttachmentSupport = (doc.getObject("YZ_Plane"), [""])
sketch12.MapMode = "FlatFace"
sketch12.AttachmentOffset = App.Placement(Vector(0, 0, -65), App.Rotation())
sketch12.addGeometry([
    Part.LineSegment(Vector(60, -25, 0), Vector(20, -25, 0)),
    Part.LineSegment(Vector(20, -25, 0), Vector(20, 0, 0)),
    Part.LineSegment(Vector(20, 0, 0), Vector(60, 0, 0)),
    Part.LineSegment(Vector(60, 0, 0), Vector(60, -25, 0)),
], False)
sketch12.addConstraint([
    Sketcher.Constraint("Coincident", 0, 2, 1, 1),
    Sketcher.Constraint("Coincident", 1, 2, 2, 1),
    Sketcher.Constraint("Coincident", 2, 2, 3, 1),
    Sketcher.Constraint("Coincident", 3, 2, 0, 1),
    Sketcher.Constraint("Horizontal", 0),
    Sketcher.Constraint("Vertical", 1),
    Sketcher.Constraint("Horizontal", 2),
    Sketcher.Constraint("Vertical", 3),
    Sketcher.Constraint("PointOnObject", 1, 2, -1),
    Sketcher.Constraint("DistanceX", 0, 2, 0, 1, Q("40 mm")),
    Sketcher.Constraint("DistanceY", 1, 1, 1, 2, Q("25 mm")),
    Sketcher.Constraint("DistanceX", -1, 1, 0, 2, Q("20 mm")),
])
pad5 = body.newObject("PartDesign::Pad", "Pad004")
pad5.Profile = sketch12
pad5.Length = 7
pad5.Reversed = True

sketch13 = body.newObject("Sketcher::SketchObject", "Sketch012")
sketch13.AttachmentSupport = (doc.getObject("XZ_Plane"), [""])
sketch13.MapMode = "FlatFace"
sketch13.AttachmentOffset = App.Placement(Vector(0, 0, -60), App.Rotation())
sketch13.addGeometry([
    Part.LineSegment(Vector(-72, -25, 0), Vector(-72, 97, 0)),
    Part.LineSegment(Vector(-72, 97, 0), Vector(72, 97, 0)),
    Part.LineSegment(Vector(72, 97, 0), Vector(72, -25, 0)),
    Part.LineSegment(Vector(72, -25, 0), Vector(-72, -25, 0)),
], False)
sketch13.addConstraint([
    Sketcher.Constraint("Coincident", 0, 2, 1, 1),
    Sketcher.Constraint("Coincident", 1, 2, 2, 1),
    Sketcher.Constraint("Coincident", 2, 2, 3, 1),
    Sketcher.Constraint("Coincident", 3, 2, 0, 1),
    Sketcher.Constraint("Vertical", 0),
    Sketcher.Constraint("Horizontal", 1),
    Sketcher.Constraint("Vertical", 2),
    Sketcher.Constraint("Horizontal", 3),
    Sketcher.Constraint("DistanceX", 0, 2, -1, 1, Q("72 mm")),
    Sketcher.Constraint("DistanceY", 2, 2, -1, 1, Q("25 mm")),
    Sketcher.Constraint("DistanceX", 1, 1, 1, 2, Q("144.296296 mm")),
    Sketcher.Constraint("DistanceY", 0, 1, 0, 2, Q("122.248772 mm")),
])
pocket8 = body.newObject("PartDesign::Pocket", "Pocket007")
pocket8.Profile = sketch13
pocket8.Length = 16
pocket8.Reversed = True

sketch14 = body.newObject("Sketcher::SketchObject", "Sketch013")
sketch14.AttachmentSupport = (doc.getObject("XZ_Plane"), [""])
sketch14.MapMode = "FlatFace"
sketch14.AttachmentOffset = App.Placement(Vector(0, 0, -44), App.Rotation())
sketch14.addGeometry(Part.Circle(Vector(0, -13, 0), Vector(0, 0, 1), 11), False)
sketch14.addConstraint([
    Sketcher.Constraint("PointOnObject", 0, 3, -2),
    Sketcher.Constraint("Diameter", 0, Q("21.149758 mm")),
    Sketcher.Constraint("DistanceY", 0, 3, -1, 1, Q("12.714222 mm")),
])
pad6 = body.newObject("PartDesign::Pad", "Pad005")
pad6.Profile = sketch14
pad6.Length = 24

sketch15 = body.newObject("Sketcher::SketchObject", "Sketch014")
sketch15.AttachmentSupport = (doc.getObject("XZ_Plane"), [""])
sketch15.MapMode = "FlatFace"
sketch15.AttachmentOffset = App.Placement(Vector(0, 0, -44), App.Rotation())
sketch15.addGeometry(Part.Circle(Vector(0, -11, 0), Vector(0, 0, 1), 5), False)
sketch15.addConstraint([
    Sketcher.Constraint("PointOnObject", 0, 3, -2),
    Sketcher.Constraint("Diameter", 0, Q("10.6 mm")),
    Sketcher.Constraint("DistanceY", 0, 3, -1, 1, Q("11.2 mm")),
])
pocket9 = body.newObject("PartDesign::Pocket", "Pocket008")
pocket9.Profile = sketch15
pocket9.Length = 24
pocket9.Reversed = True

sketch16 = body.newObject("Sketcher::SketchObject", "Sketch015")
sketch16.AttachmentSupport = (doc.getObject("XZ_Plane"), [""])
sketch16.MapMode = "FlatFace"
sketch16.AttachmentOffset = App.Placement(Vector(0, 0, -44), App.Rotation())
sketch16.addGeometry(Part.Circle(Vector(0, -11, 0), Vector(0, 0, 1), 11), False)
sketch16.addConstraint([
    Sketcher.Constraint("PointOnObject", 0, 3, -2),
    Sketcher.Constraint("Diameter", 0, Q("22.5 mm")),
    Sketcher.Constraint("DistanceY", 0, 3, -1, 1, Q("11.2 mm")),
])
pocket10 = body.newObject("PartDesign::Pocket", "Pocket009")
pocket10.Profile = sketch16
pocket10.Length = 4
pocket10.Reversed = True

sketch17 = body.newObject("Sketcher::SketchObject", "Sketch016")
sketch17.AttachmentSupport = (doc.getObject("XZ_Plane"), [""])
sketch17.MapMode = "FlatFace"
sketch17.AttachmentOffset = App.Placement(Vector(0, 0, -44), App.Rotation())
sketch17.addGeometry(Part.Circle(Vector(0, 51, 0), Vector(0, 0, 1), 41), False)
sketch17.addConstraint([
    Sketcher.Constraint("PointOnObject", 0, 3, -2),
    Sketcher.Constraint("Diameter", 0, Q("82.483049 mm")),
    Sketcher.Constraint("DistanceY", -1, 1, 0, 3, Q("51.285778 mm")),
])
pad7 = body.newObject("PartDesign::Pad", "Pad006")
pad7.Profile = sketch17
pad7.Length = 24

sketch18 = body.newObject("Sketcher::SketchObject", "Sketch017")
sketch18.AttachmentSupport = (doc.getObject("XZ_Plane"), [""])
sketch18.MapMode = "FlatFace"
sketch18.AttachmentOffset = App.Placement(Vector(0, 0, -44), App.Rotation())
sketch18.addGeometry(Part.Circle(Vector(0, 52, 0), Vector(0, 0, 1), 38), False)
sketch18.addConstraint([
    Sketcher.Constraint("PointOnObject", 0, 3, -2),
    Sketcher.Constraint("Diameter", 0, Q("76 mm")),
    Sketcher.Constraint("DistanceY", -1, 1, 0, 3, Q("51.596504 mm")),
])
pocket11 = body.newObject("PartDesign::Pocket", "Pocket010")
pocket11.Profile = sketch18
pocket11.Length = 24
pocket11.Reversed = True
doc.recompute()

fillet = body.newObject("PartDesign::Fillet", "Fillet")
fillet.Base = (pocket11, edges_at(pocket11, [(44.474, 32, 97), (-44.474, 32, 97)]))
fillet.Radius = 30

doc.recompute()
